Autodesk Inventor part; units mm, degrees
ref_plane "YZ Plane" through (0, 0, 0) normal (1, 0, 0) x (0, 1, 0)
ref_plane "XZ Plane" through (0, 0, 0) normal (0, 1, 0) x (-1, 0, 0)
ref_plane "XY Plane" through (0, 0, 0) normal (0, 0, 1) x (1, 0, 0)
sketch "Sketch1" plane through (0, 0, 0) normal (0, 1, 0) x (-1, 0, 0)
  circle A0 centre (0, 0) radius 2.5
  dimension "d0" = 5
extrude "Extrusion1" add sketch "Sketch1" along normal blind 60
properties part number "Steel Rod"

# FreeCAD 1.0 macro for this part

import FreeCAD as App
import Part
import Sketcher

doc = App.newDocument("Part")
body = doc.addObject("PartDesign::Body", "Body")

sketch1 = body.newObject("Sketcher::SketchObject", "Sketch")
sketch1.AttachmentSupport = (doc.getObject("XZ_Plane"), [""])
sketch1.MapMode = "FlatFace"
sketch1.addGeometry(Part.Circle(App.Vector(0, 0, 0), App.Vector(0, 0, 1), 2.5), False)
sketch1.addConstraint(Sketcher.Constraint("Coincident", 0, 3, -1, 1))
sketch1.addConstraint(Sketcher.Constraint("Diameter", 0, 5.0))
pad1 = body.newObject("PartDesign::Pad", "Pad")
pad1.Profile = sketch1
pad1.Length = 60
pad1.Reversed = True

doc.recompute()
